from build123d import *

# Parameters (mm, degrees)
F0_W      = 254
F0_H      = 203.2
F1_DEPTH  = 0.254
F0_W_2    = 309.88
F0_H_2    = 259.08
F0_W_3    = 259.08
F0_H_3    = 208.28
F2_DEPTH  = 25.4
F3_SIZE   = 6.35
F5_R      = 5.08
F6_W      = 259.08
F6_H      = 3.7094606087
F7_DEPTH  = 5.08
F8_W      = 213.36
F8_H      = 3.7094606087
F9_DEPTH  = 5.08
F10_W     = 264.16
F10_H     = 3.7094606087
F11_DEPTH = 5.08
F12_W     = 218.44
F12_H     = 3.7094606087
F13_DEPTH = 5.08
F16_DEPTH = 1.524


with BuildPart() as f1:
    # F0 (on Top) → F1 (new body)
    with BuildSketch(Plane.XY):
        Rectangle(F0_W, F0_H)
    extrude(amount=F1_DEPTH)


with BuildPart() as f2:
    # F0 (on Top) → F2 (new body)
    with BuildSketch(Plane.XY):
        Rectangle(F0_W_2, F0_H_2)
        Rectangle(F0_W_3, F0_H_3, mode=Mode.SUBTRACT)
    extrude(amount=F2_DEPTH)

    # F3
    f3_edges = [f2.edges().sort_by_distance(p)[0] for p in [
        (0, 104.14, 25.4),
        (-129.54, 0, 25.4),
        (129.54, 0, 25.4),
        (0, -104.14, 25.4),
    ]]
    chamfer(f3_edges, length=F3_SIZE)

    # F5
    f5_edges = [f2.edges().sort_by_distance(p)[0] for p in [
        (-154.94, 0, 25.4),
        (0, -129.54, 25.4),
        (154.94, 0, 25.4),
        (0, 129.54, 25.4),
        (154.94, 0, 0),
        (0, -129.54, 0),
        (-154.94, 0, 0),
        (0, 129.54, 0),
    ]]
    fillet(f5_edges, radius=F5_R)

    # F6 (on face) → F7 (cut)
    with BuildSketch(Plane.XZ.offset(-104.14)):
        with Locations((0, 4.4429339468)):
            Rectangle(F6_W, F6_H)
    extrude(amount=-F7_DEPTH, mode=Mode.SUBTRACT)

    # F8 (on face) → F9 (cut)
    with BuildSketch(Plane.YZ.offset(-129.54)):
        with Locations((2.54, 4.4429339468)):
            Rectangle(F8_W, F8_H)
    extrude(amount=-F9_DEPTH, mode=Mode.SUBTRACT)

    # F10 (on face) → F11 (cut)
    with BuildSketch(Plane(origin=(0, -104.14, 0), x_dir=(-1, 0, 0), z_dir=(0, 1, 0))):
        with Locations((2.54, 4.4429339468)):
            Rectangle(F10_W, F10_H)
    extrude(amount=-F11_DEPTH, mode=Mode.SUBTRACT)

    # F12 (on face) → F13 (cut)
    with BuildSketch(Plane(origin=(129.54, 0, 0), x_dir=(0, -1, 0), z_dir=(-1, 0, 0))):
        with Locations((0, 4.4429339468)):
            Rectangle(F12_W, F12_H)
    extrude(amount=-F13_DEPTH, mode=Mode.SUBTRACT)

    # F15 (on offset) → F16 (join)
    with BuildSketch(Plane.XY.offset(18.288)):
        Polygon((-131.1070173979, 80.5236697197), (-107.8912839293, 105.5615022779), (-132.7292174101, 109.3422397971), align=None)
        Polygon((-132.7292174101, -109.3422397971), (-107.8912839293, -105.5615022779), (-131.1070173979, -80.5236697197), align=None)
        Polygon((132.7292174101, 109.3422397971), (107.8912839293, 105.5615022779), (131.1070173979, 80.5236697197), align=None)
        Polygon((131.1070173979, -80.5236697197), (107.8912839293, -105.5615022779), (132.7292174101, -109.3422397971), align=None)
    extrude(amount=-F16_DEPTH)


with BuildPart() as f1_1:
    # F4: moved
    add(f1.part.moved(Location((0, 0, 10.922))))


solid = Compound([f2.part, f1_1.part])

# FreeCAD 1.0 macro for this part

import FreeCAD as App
import Part
import Sketcher

V = App.Vector
Q = App.Units.Quantity


def edges_at(feature, points):
    """Names of the edges that pass closest to the given points."""
    edges = feature.Shape.Edges
    near = lambda p: min(range(len(edges)), key=lambda i: edges[i].distToShape(Part.Vertex(*p))[0])
    return sorted({f"Edge{near(p) + 1}" for p in points})


def add_polygon(sketch, points):
    """Adds a closed chain of lines whose ends are joined by coincident constraints."""
    first, n = sketch.GeometryCount, len(points)
    for a, b in zip(points, points[1:] + points[:1]):
        sketch.addGeometry(Part.LineSegment(App.Vector(*a, 0), App.Vector(*b, 0)), False)
    for i in range(n):
        sketch.addConstraint(Sketcher.Constraint("Coincident", first + i, 2, first + (i + 1) % n, 1))

doc = App.newDocument("Part")
body = doc.addObject("PartDesign::Body", "Body")

sketch1 = body.newObject("Sketcher::SketchObject", "Sketch")
sketch1.AttachmentSupport = (doc.getObject("XY_Plane"), [""])
sketch1.MapMode = "FlatFace"
add_polygon(sketch1, [(-127, 102), (-127, -102), (127, -102), (127, 102)])
sketch1.addConstraint([
    Sketcher.Constraint("Vertical", 0),
    Sketcher.Constraint("Horizontal", 1),
    Sketcher.Constraint("Vertical", 2),
    Sketcher.Constraint("Horizontal", 3),
    Sketcher.Constraint("Symmetric", 0, 2, 2, 2, -1, 1),
    Sketcher.Constraint("DistanceX", 1, 1, 1, 2, Q("10 in")),
    Sketcher.Constraint("DistanceY", 0, 2, 0, 1, Q("8 in")),
])
pad1 = body.newObject("PartDesign::Pad", "Pad")
pad1.Profile = sketch1
pad1.Length = Q("0.01 in")
body2 = doc.addObject("PartDesign::Body", "Body001")

sketch2 = body2.newObject("Sketcher::SketchObject", "Sketch001")
sketch2.AttachmentSupport = (doc.getObject("XY_Plane001"), [""])
sketch2.MapMode = "FlatFace"
add_polygon(sketch2, [(-155, 130), (-155, -130), (155, -130), (155, 130)])
add_polygon(sketch2, [(130, -104), (-130, -104), (-130, 104), (130, 104)])
sketch2.addConstraint([
    Sketcher.Constraint("Vertical", 0),
    Sketcher.Constraint("Horizontal", 1),
    Sketcher.Constraint("Vertical", 2),
    Sketcher.Constraint("Horizontal", 3),
    Sketcher.Constraint("Horizontal", 4),
    Sketcher.Constraint("Vertical", 5),
    Sketcher.Constraint("Horizontal", 6),
    Sketcher.Constraint("Vertical", 7),
    Sketcher.Constraint("Symmetric", 0, 2, 2, 2, -1, 1),
    Sketcher.Constraint("Symmetric", 4, 2, 6, 2, -1, 1),
    Sketcher.Constraint("Equal", 6, 0),
    Sketcher.Constraint("DistanceX", 1, 1, 1, 2, Q("12.2 in")),
    Sketcher.Constraint("DistanceX", 4, 2, 4, 1, Q("10.2 in")),
    Sketcher.Constraint("DistanceY", 5, 1, 5, 2, Q("8.2 in")),
])
pad2 = body2.newObject("PartDesign::Pad", "Pad001")
pad2.Profile = sketch2
pad2.Length = Q("1 in")
doc.recompute()

chamfer = body2.newObject("PartDesign::Chamfer", "Chamfer")
chamfer.Base = (pad2, edges_at(pad2, [
    (0, 104.14, 25.4),
    (-129.54, 0, 25.4),
    (129.54, 0, 25.4),
    (0, -104.14, 25.4),
]))
chamfer.Size = Q("0.25 in")
doc.recompute()

fillet = body2.newObject("PartDesign::Fillet", "Fillet")
fillet.Base = (chamfer, edges_at(chamfer, [
    (-154.94, 0, 25.4),
    (0, -129.54, 25.4),
    (154.94, 0, 25.4),
    (0, 129.54, 25.4),
    (154.94, 0, 0),
    (0, -129.54, 0),
    (-154.94, 0, 0),
    (0, 129.54, 0),
]))
fillet.Radius = Q("0.2 in")

sketch3 = body2.newObject("Sketcher::SketchObject", "Sketch002")
sketch3.AttachmentSupport = (doc.getObject("XZ_Plane001"), [""])
sketch3.MapMode = "FlatFace"
sketch3.AttachmentOffset = App.Placement(V(0, 0, -4.1 * 25.4), App.Rotation())
add_polygon(sketch3, [(-129.5, 6.3), (-129.5, 2.6), (129.5, 2.6), (129.5, 6.3)])
sketch3.addConstraint([
    Sketcher.Constraint("Vertical", 0),
    Sketcher.Constraint("Horizontal", 1),
    Sketcher.Constraint("Vertical", 2),
    Sketcher.Constraint("Horizontal", 3),
    Sketcher.Constraint("DistanceX", 1, 1, 1, 2, Q("10.2 in")),
    Sketcher.Constraint("DistanceX", 0, 2, -1, 1, Q("5.1 in")),
    Sketcher.Constraint("DistanceY", 0, 2, 0, 1, Q("3.709461 mm")),
    Sketcher.Constraint("DistanceY", -1, 1, 0, 2, Q("2.588204 mm")),
])
pocket1 = body2.newObject("PartDesign::Pocket", "Pocket")
pocket1.Profile = sketch3
pocket1.Length = Q("0.2 in")

sketch4 = body2.newObject("Sketcher::SketchObject", "Sketch003")
sketch4.AttachmentSupport = (doc.getObject("YZ_Plane001"), [""])
sketch4.MapMode = "FlatFace"
sketch4.AttachmentOffset = App.Placement(V(0, 0, -5.1 * 25.4), App.Rotation())
add_polygon(sketch4, [(-104.1, 6.3), (-104.1, 2.6), (109.2, 2.6), (109.2, 6.3)])
sketch4.addConstraint([
    Sketcher.Constraint("Vertical", 0),
    Sketcher.Constraint("Horizontal", 1),
    Sketcher.Constraint("Vertical", 2),
    Sketcher.Constraint("Horizontal", 3),
    Sketcher.Constraint("DistanceX", 1, 1, 1, 2, Q("8.4 in")),
    Sketcher.Constraint("DistanceX", 0, 2, -1, 1, Q("4.1 in")),
    Sketcher.Constraint("DistanceY", 0, 2, 0, 1, Q("3.709461 mm")),
    Sketcher.Constraint("DistanceY", -1, 1, 0, 2, Q("2.588204 mm")),
])
pocket2 = body2.newObject("PartDesign::Pocket", "Pocket001")
pocket2.Profile = sketch4
pocket2.Length = Q("0.2 in")

sketch5 = body2.newObject("Sketcher::SketchObject", "Sketch004")
sketch5.AttachmentSupport = (doc.getObject("XZ_Plane001"), [""])
sketch5.MapMode = "FlatFace"
sketch5.AttachmentOffset = App.Placement(V(0, 0, 4.1 * 25.4), App.Rotation())
add_polygon(sketch5, [(129.5, 6.3), (129.5, 2.6), (-134.6, 2.6), (-134.6, 6.3)])
sketch5.addConstraint([
    Sketcher.Constraint("Vertical", 0),
    Sketcher.Constraint("Horizontal", 1),
    Sketcher.Constraint("Vertical", 2),
    Sketcher.Constraint("Horizontal", 3),
    Sketcher.Constraint("DistanceX", 1, 2, 1, 1, Q("10.4 in")),
    Sketcher.Constraint("DistanceX", -1, 1, 0, 2, Q("5.1 in")),
    Sketcher.Constraint("DistanceY", 0, 2, 0, 1, Q("3.709461 mm")),
    Sketcher.Constraint("DistanceY", -1, 1, 0, 2, Q("2.588204 mm")),
])
pocket3 = body2.newObject("PartDesign::Pocket", "Pocket002")
pocket3.Profile = sketch5
pocket3.Length = Q("0.2 in")
pocket3.Reversed = True

sketch6 = body2.newObject("Sketcher::SketchObject", "Sketch005")
sketch6.AttachmentSupport = (doc.getObject("YZ_Plane001"), [""])
sketch6.MapMode = "FlatFace"
sketch6.AttachmentOffset = App.Placement(V(0, 0, 5.1 * 25.4), App.Rotation())
add_polygon(sketch6, [(109.2, 6.3), (109.2, 2.6), (-109.2, 2.6), (-109.2, 6.3)])
sketch6.addConstraint([
    Sketcher.Constraint("Vertical", 0),
    Sketcher.Constraint("Horizontal", 1),
    Sketcher.Constraint("Vertical", 2),
    Sketcher.Constraint("Horizontal", 3),
    Sketcher.Constraint("DistanceX", 1, 2, 1, 1, Q("8.6 in")),
    Sketcher.Constraint("DistanceX", -1, 1, 0, 2, Q("4.3 in")),
    Sketcher.Constraint("DistanceY", 0, 2, 0, 1, Q("3.709461 mm")),
    Sketcher.Constraint("DistanceY", -1, 1, 0, 2, Q("2.588204 mm")),
])
pocket4 = body2.newObject("PartDesign::Pocket", "Pocket003")
pocket4.Profile = sketch6
pocket4.Length = Q("0.2 in")
pocket4.Reversed = True

sketch7 = body2.newObject("Sketcher::SketchObject", "Sketch006")
sketch7.AttachmentSupport = (doc.getObject("XY_Plane001"), [""])
sketch7.MapMode = "FlatFace"
sketch7.AttachmentOffset = App.Placement(V(0, 0, 0.72 * 25.4), App.Rotation())
add_polygon(sketch7, [(-131, 81), (-108, 106), (-133, 109)])
add_polygon(sketch7, [(-133, -109), (-108, -106), (-131, -81)])
add_polygon(sketch7, [(133, 109), (108, 106), (131, 81)])
add_polygon(sketch7, [(131, -81), (108, -106), (133, -109)])
sketch7.addConstraint([
    Sketcher.Constraint("Symmetric", 3, 2, 6, 2, -1, 1),
    Sketcher.Constraint("Symmetric", 4, 2, 7, 2, -1, 1),
    Sketcher.Constraint("Symmetric", 5, 2, 8, 2, -1, 1),
    Sketcher.Constraint("Symmetric", 0, 2, 9, 2, -1, 1),
    Sketcher.Constraint("Symmetric", 1, 2, 10, 2, -1, 1),
    Sketcher.Constraint("Symmetric", 2, 2, 11, 2, -1, 1),
    Sketcher.Constraint("Symmetric", 0, 2, 6, 2, -2),
    Sketcher.Constraint("Symmetric", 2, 2, 7, 2, -2),
    Sketcher.Constraint("Symmetric", 1, 2, 8, 2, -2),
    Sketcher.Constraint("DistanceX", 1, 2, 2, 2, Q("1.6222 mm")),
    Sketcher.Constraint("DistanceX", 2, 2, 6, 2, Q("238.998301 mm")),
    Sketcher.Constraint("Distance", 0, Q("34.144741 mm")),
    Sketcher.Constraint("Distance", 1, Q("25.124031 mm")),
    Sketcher.Constraint("Distance", 2, Q("28.864191 mm")),
    Sketcher.Constraint("DistanceY", -1, 1, 1, 2, Q("109.34224 mm")),
])
pad3 = body2.newObject("PartDesign::Pad", "Pad002")
pad3.Profile = sketch7
pad3.Length = Q("0.06 in")
pad3.Reversed = True
body3 = doc.addObject("PartDesign::Body", "Body002")
doc.recompute()

body.Placement = App.Placement(V(0, 0, 10.922), App.Rotation(V(0, 0, 1), 0))
boolean = body3.newObject("PartDesign::Boolean", "Boolean")
boolean.Type = "Fuse"
boolean.addObjects([body])

doc.recompute()
